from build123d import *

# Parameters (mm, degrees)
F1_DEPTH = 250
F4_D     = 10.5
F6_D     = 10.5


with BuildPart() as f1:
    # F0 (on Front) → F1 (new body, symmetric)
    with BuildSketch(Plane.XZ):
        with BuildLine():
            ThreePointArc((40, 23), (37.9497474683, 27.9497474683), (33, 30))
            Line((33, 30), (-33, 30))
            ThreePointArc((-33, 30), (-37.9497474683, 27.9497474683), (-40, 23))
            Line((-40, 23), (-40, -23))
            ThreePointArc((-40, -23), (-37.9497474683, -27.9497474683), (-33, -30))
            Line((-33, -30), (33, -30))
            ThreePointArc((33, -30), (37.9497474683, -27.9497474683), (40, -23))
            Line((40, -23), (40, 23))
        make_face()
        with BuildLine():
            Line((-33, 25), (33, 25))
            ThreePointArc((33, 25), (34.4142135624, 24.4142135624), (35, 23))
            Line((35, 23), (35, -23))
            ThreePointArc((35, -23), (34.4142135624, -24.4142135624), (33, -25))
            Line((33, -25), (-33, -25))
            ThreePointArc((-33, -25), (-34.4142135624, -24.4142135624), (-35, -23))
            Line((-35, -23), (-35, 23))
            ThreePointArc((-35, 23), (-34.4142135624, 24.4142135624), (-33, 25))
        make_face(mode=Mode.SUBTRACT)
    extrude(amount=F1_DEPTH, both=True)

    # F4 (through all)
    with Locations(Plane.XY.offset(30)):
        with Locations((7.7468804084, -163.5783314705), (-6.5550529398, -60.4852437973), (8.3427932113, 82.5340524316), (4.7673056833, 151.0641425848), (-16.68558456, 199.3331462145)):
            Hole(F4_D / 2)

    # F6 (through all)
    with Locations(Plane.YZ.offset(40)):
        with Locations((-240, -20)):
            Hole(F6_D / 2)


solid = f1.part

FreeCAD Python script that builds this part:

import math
import FreeCAD as App
import Part
import Sketcher

V = App.Vector
Q = App.Units.Quantity

doc = App.newDocument("Part")
params = doc.addObject("Spreadsheet::Sheet", "Params")
for row, (alias, value) in enumerate([
    ("sketch1_radius", "7 mm"),
    ("sketch1_radius2", "2 mm"),
    ("sketch1_width", "66 mm"),
    ("sketch1_height", "46 mm"),
    ("pad1_length", "500 mm"),
    ("sketch2_diameter", "10.5 mm"),
    ("hole_diameter", "10.5 mm"),
    ("sketch3_diameter", "10.5 mm"),
    ("hole2_diameter", "10.5 mm"),
], start=1):
    params.set(f"A{row}", alias)
    params.set(f"B{row}", "=" + value)
    params.setAlias(f"B{row}", alias)

body = doc.addObject("PartDesign::Body", "Body")

# Sketch on XZ plane
sketch1 = body.newObject("Sketcher::SketchObject", "Sketch")
sketch1.AttachmentSupport = (doc.getObject("XZ_Plane"), [""])
sketch1.MapMode = "FlatFace"
sketch1.addGeometry([
    Part.ArcOfCircle(Part.Circle(V(33, 23, 0), V(0, 0, 1), 7), math.radians(0), math.radians(90)),  # 0
    Part.LineSegment(V(33, 30, 0), V(-33, 30, 0)),  # 1
    Part.ArcOfCircle(Part.Circle(V(-33, 23, 0), V(0, 0, 1), 7), math.radians(90), math.radians(180)),  # 2
    Part.LineSegment(V(-40, 23, 0), V(-40, -23, 0)),  # 3
    Part.ArcOfCircle(Part.Circle(V(-33, -23, 0), V(0, 0, 1), 7), math.radians(180), math.radians(270)),  # 4
    Part.LineSegment(V(-33, -30, 0), V(33, -30, 0)),  # 5
    Part.ArcOfCircle(Part.Circle(V(33, -23, 0), V(0, 0, 1), 7), math.radians(-90), math.radians(0)),  # 6
    Part.LineSegment(V(40, -23, 0), V(40, 23, 0)),  # 7
    Part.ArcOfCircle(Part.Circle(V(-33, 23, 0), V(0, 0, 1), 2), math.radians(90), math.radians(180)),  # 8
    Part.LineSegment(V(-33, 25, 0), V(33, 25, 0)),  # 9
    Part.ArcOfCircle(Part.Circle(V(33, 23, 0), V(0, 0, 1), 2), math.radians(0), math.radians(90)),  # 10
    Part.LineSegment(V(35, 23, 0), V(35, -23, 0)),  # 11
    Part.ArcOfCircle(Part.Circle(V(33, -23, 0), V(0, 0, 1), 2), math.radians(-90), math.radians(0)),  # 12
    Part.LineSegment(V(33, -25, 0), V(-33, -25, 0)),  # 13
    Part.ArcOfCircle(Part.Circle(V(-33, -23, 0), V(0, 0, 1), 2), math.radians(180), math.radians(270)),  # 14
    Part.LineSegment(V(-35, -23, 0), V(-35, 23, 0)),  # 15
], False)
sketch1.addConstraint([
    Sketcher.Constraint("Tangent", 0, 2, 1, 1),
    Sketcher.Constraint("Tangent", 1, 2, 2, 1),
    Sketcher.Constraint("Tangent", 2, 2, 3, 1),
    Sketcher.Constraint("Tangent", 3, 2, 4, 1),
    Sketcher.Constraint("Tangent", 4, 2, 5, 1),
    Sketcher.Constraint("Tangent", 5, 2, 6, 1),
    Sketcher.Constraint("Tangent", 6, 2, 7, 1),
    Sketcher.Constraint("Tangent", 7, 2, 0, 1),
    Sketcher.Constraint("Tangent", 8, 1, 9, 1),
    Sketcher.Constraint("Tangent", 9, 2, 10, 2),
    Sketcher.Constraint("Tangent", 10, 1, 11, 1),
    Sketcher.Constraint("Tangent", 11, 2, 12, 2),
    Sketcher.Constraint("Tangent", 12, 1, 13, 1),
    Sketcher.Constraint("Tangent", 13, 2, 14, 2),
    Sketcher.Constraint("Tangent", 14, 1, 15, 1),
    Sketcher.Constraint("Tangent", 15, 2, 8, 2),
    Sketcher.Constraint("Horizontal", 1),
    Sketcher.Constraint("Vertical", 3),
    Sketcher.Constraint("Horizontal", 5),
    Sketcher.Constraint("Vertical", 7),
    Sketcher.Constraint("Horizontal", 9),
    Sketcher.Constraint("Vertical", 11),
    Sketcher.Constraint("Horizontal", 13),
    Sketcher.Constraint("Vertical", 15),
    Sketcher.Constraint("Coincident", 8, 3, 2, 3),
    Sketcher.Constraint("Coincident", 10, 3, 0, 3),
    Sketcher.Constraint("Coincident", 12, 3, 6, 3),
    Sketcher.Constraint("Equal", 0, 2),
    Sketcher.Constraint("Equal", 2, 4),
    Sketcher.Constraint("Equal", 4, 6),
    Sketcher.Constraint("Equal", 12, 14),
    Sketcher.Constraint("Symmetric", 0, 3, 4, 3, -1, 1),
    Sketcher.Constraint("Radius", 0, Q("7 mm")),
    Sketcher.Constraint("Radius", 8, Q("2 mm")),
    Sketcher.Constraint("DistanceX", 1, 2, 1, 1, Q("66 mm")),
    Sketcher.Constraint("DistanceY", 3, 2, 3, 1, Q("46 mm")),
])
sketch1.setExpression("Constraints[32]", "Params.sketch1_radius")
sketch1.setExpression("Constraints[33]", "Params.sketch1_radius2")
sketch1.setExpression("Constraints[34]", "Params.sketch1_width")
sketch1.setExpression("Constraints[35]", "Params.sketch1_height")
pad1 = body.newObject("PartDesign::Pad", "Pad")
pad1.Profile = sketch1
pad1.setExpression("Length", "Params.pad1_length")
pad1.Midplane = True

# Sketch on XY plane
sketch2 = body.newObject("Sketcher::SketchObject", "Sketch001")
sketch2.AttachmentSupport = (doc.getObject("XY_Plane"), [""])
sketch2.MapMode = "FlatFace"
sketch2.AttachmentOffset = App.Placement(V(0, 0, 30), App.Rotation())
sketch2.addGeometry([
    Part.Circle(V(8, -164, 0), V(0, 0, 1), 5),  # 0
    Part.Circle(V(-7, -60, 0), V(0, 0, 1), 5),  # 1
    Part.Circle(V(8, 83, 0), V(0, 0, 1), 5),  # 2
    Part.Circle(V(5, 151, 0), V(0, 0, 1), 5),  # 3
    Part.Circle(V(-17, 199, 0), V(0, 0, 1), 5),  # 4
], False)
sketch2.addConstraint([
    Sketcher.Constraint("Equal", 0, 1),
    Sketcher.Constraint("Equal", 1, 2),
    Sketcher.Constraint("Equal", 2, 3),
    Sketcher.Constraint("Equal", 3, 4),
    Sketcher.Constraint("Diameter", 0, Q("10.5 mm")),
    Sketcher.Constraint("DistanceX", -1, 1, 0, 3, Q("7.74688 mm")),
    Sketcher.Constraint("DistanceY", 0, 3, -1, 1, Q("163.578331 mm")),
    Sketcher.Constraint("DistanceY", 2, 3, 3, 3, Q("68.53009 mm")),
    Sketcher.Constraint("DistanceX", 1, 3, 3, 3, Q("11.322359 mm")),
    Sketcher.Constraint("DistanceX", 4, 3, 3, 3, Q("21.45289 mm")),
    Sketcher.Constraint("DistanceY", 1, 3, 4, 3, Q("259.81839 mm")),
    Sketcher.Constraint("DistanceX", 1, 3, -1, 1, Q("6.555053 mm")),
    Sketcher.Constraint("DistanceY", 1, 3, -1, 1, Q("60.485244 mm")),
    Sketcher.Constraint("DistanceX", -1, 1, 2, 3, Q("8.342793 mm")),
    Sketcher.Constraint("DistanceY", -1, 1, 2, 3, Q("82.534052 mm")),
])
sketch2.setExpression("Constraints[4]", "Params.sketch2_diameter")
doc.recompute()
hole = body.newObject("PartDesign::Hole", "Hole")
hole.Profile = sketch2
hole.ThreadType = "None"
hole.setExpression("Diameter", "Params.hole_diameter")
hole.DepthType = "ThroughAll"

# Sketch on YZ plane
sketch3 = body.newObject("Sketcher::SketchObject", "Sketch002")
sketch3.AttachmentSupport = (doc.getObject("YZ_Plane"), [""])
sketch3.MapMode = "FlatFace"
sketch3.AttachmentOffset = App.Placement(V(0, 0, 40), App.Rotation())
sketch3.addGeometry(Part.Circle(V(-240, -20, 0), V(0, 0, 1), 5), False)
sketch3.addConstraint([
    Sketcher.Constraint("Diameter", 0, Q("10.5 mm")),
    Sketcher.Constraint("DistanceX", 0, 3, -1, 1, Q("240 mm")),
    Sketcher.Constraint("DistanceY", 0, 3, -1, 1, Q("20 mm")),
])
sketch3.setExpression("Constraints[0]", "Params.sketch3_diameter")
doc.recompute()
hole2 = body.newObject("PartDesign::Hole", "Hole001")
hole2.Profile = sketch3
hole2.ThreadType = "None"
hole2.setExpression("Diameter", "Params.hole2_diameter")
hole2.DepthType = "ThroughAll"

doc.recompute()
